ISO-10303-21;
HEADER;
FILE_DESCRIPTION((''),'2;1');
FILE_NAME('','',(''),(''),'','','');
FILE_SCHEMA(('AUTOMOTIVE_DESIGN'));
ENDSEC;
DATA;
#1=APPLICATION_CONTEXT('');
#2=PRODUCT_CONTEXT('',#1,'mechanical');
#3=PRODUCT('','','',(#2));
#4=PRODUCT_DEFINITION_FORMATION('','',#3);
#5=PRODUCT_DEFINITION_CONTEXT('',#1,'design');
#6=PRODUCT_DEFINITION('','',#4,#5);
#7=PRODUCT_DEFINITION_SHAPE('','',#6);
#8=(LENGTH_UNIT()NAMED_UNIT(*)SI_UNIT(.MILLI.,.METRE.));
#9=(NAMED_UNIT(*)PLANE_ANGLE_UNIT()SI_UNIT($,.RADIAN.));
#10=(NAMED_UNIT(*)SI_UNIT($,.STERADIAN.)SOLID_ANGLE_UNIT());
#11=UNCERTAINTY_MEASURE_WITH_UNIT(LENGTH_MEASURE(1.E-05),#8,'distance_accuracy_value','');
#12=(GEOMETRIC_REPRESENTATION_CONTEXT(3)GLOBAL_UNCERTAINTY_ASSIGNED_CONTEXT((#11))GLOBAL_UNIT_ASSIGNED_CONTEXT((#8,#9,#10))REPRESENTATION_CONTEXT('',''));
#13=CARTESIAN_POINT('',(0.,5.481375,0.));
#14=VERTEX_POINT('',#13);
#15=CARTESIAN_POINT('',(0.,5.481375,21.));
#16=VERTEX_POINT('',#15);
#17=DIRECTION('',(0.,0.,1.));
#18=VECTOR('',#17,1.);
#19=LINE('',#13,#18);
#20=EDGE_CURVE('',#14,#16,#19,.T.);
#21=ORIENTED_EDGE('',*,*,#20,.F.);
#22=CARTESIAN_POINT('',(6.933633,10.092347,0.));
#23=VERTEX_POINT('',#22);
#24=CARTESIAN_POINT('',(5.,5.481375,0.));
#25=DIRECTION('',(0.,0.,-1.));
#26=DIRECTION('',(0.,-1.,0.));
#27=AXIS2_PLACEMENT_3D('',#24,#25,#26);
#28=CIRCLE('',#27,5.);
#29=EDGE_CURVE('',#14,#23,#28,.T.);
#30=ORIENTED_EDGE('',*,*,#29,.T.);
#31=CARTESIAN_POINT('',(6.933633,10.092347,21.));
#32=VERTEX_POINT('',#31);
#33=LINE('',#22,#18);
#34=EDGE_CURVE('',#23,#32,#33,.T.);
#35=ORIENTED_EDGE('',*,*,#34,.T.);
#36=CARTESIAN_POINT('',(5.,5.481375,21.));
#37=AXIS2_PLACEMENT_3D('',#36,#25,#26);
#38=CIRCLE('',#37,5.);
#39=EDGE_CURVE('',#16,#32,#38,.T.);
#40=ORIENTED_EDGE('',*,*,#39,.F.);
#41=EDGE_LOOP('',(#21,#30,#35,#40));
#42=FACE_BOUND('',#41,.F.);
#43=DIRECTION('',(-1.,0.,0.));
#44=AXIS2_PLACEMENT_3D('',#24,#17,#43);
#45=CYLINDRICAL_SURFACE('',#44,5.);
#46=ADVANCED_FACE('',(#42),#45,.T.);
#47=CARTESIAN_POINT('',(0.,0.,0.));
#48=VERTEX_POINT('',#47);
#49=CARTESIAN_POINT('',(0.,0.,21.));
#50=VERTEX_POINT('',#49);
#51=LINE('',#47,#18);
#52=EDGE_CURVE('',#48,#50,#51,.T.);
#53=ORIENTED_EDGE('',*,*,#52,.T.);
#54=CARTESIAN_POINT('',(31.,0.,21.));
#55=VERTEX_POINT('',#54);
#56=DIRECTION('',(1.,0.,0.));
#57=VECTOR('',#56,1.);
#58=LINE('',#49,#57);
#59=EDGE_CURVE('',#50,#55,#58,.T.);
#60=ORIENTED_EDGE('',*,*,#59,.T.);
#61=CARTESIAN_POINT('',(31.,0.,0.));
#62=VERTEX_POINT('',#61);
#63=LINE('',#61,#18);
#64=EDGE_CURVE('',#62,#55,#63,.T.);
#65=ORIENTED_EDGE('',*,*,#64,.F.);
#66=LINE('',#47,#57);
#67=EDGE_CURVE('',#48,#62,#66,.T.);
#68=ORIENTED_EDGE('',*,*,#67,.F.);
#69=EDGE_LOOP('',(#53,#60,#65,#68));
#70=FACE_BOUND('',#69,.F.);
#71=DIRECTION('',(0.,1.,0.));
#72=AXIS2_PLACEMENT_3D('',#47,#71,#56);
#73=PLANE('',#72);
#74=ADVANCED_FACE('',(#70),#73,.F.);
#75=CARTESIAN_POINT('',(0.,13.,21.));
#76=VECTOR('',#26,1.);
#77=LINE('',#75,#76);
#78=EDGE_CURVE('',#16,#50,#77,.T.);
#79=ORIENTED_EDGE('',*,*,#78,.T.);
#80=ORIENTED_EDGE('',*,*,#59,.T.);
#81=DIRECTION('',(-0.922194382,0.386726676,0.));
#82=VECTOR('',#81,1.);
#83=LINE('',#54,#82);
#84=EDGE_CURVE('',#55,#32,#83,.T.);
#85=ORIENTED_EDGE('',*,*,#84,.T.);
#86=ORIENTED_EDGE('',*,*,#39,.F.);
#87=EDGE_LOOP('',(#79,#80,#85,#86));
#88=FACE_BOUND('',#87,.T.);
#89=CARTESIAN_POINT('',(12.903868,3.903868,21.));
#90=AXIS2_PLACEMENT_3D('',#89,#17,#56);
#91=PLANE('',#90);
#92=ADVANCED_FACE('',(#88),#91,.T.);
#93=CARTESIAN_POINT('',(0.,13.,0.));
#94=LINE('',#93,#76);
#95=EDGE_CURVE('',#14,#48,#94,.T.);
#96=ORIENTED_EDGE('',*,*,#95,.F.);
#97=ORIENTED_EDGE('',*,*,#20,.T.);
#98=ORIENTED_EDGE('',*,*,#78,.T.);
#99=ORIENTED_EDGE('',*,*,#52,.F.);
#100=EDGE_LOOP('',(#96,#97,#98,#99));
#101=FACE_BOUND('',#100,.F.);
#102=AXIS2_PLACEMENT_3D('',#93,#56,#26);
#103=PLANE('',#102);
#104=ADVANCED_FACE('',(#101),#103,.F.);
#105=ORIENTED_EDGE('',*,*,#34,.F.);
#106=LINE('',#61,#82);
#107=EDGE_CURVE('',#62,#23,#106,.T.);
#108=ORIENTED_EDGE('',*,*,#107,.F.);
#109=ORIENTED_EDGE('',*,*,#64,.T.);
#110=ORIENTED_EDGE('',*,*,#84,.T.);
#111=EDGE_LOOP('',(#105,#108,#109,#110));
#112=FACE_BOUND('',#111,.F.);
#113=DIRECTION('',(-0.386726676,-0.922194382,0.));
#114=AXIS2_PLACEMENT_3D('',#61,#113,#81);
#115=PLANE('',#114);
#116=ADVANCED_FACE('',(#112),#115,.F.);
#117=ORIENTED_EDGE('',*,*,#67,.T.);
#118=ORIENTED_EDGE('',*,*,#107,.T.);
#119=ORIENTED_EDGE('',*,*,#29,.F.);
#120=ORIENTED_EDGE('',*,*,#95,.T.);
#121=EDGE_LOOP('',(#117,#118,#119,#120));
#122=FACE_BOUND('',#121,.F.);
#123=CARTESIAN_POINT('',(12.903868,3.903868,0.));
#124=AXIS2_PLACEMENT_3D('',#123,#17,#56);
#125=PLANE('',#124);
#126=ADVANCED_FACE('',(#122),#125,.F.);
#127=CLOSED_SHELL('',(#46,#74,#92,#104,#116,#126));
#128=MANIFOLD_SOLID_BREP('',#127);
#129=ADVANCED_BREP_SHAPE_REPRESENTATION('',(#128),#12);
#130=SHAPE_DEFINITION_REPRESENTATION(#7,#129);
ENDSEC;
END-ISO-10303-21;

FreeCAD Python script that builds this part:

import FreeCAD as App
import Part
import Sketcher
Q = App.Units.Quantity


def edges_at(feature, points):
    """Names of the edges that pass closest to the given points."""
    edges = feature.Shape.Edges
    near = lambda p: min(range(len(edges)), key=lambda i: edges[i].distToShape(Part.Vertex(*p))[0])
    return sorted({f"Edge{near(p) + 1}" for p in points})

doc = App.newDocument("Part")
body = doc.addObject("PartDesign::Body", "Body")

sketch1 = doc.addObject("Sketcher::SketchObject", "Sketch")
body.addObject(sketch1)
sketch1.AttachmentSupport = (doc.XY_Plane, [""])
sketch1.MapMode = "FlatFace"
sketch1.addGeometry([
    Part.LineSegment(App.Vector(0, 13, 0), App.Vector(0, 0, 0)),
    Part.LineSegment(App.Vector(0, 0, 0), App.Vector(31, 0, 0)),
    Part.LineSegment(App.Vector(31, 0, 0), App.Vector(0, 13, 0)),
], False)
sketch1.addConstraint([
    Sketcher.Constraint("Coincident", 0, 2, 1, 1),
    Sketcher.Constraint("Coincident", 1, 2, 2, 1),
    Sketcher.Constraint("Coincident", 2, 2, 0, 1),
    Sketcher.Constraint("Vertical", 0),
    Sketcher.Constraint("Horizontal", 1),
    Sketcher.Constraint("Coincident", 0, 2, -1, 1),
    Sketcher.Constraint("DistanceX", 1, 1, 1, 2, Q("31 mm")),
    Sketcher.Constraint("DistanceY", 0, 2, 0, 1, Q("13 mm")),
])
pad1 = doc.addObject("PartDesign::Pad", "Pad")
body.addObject(pad1)
pad1.Profile = sketch1
pad1.Length = 21
doc.recompute()

fillet = doc.addObject("PartDesign::Fillet", "Fillet")
body.addObject(fillet)
fillet.Base = (pad1, edges_at(pad1, [(0, 13, 10.5)]))
fillet.Radius = 5

doc.recompute()
